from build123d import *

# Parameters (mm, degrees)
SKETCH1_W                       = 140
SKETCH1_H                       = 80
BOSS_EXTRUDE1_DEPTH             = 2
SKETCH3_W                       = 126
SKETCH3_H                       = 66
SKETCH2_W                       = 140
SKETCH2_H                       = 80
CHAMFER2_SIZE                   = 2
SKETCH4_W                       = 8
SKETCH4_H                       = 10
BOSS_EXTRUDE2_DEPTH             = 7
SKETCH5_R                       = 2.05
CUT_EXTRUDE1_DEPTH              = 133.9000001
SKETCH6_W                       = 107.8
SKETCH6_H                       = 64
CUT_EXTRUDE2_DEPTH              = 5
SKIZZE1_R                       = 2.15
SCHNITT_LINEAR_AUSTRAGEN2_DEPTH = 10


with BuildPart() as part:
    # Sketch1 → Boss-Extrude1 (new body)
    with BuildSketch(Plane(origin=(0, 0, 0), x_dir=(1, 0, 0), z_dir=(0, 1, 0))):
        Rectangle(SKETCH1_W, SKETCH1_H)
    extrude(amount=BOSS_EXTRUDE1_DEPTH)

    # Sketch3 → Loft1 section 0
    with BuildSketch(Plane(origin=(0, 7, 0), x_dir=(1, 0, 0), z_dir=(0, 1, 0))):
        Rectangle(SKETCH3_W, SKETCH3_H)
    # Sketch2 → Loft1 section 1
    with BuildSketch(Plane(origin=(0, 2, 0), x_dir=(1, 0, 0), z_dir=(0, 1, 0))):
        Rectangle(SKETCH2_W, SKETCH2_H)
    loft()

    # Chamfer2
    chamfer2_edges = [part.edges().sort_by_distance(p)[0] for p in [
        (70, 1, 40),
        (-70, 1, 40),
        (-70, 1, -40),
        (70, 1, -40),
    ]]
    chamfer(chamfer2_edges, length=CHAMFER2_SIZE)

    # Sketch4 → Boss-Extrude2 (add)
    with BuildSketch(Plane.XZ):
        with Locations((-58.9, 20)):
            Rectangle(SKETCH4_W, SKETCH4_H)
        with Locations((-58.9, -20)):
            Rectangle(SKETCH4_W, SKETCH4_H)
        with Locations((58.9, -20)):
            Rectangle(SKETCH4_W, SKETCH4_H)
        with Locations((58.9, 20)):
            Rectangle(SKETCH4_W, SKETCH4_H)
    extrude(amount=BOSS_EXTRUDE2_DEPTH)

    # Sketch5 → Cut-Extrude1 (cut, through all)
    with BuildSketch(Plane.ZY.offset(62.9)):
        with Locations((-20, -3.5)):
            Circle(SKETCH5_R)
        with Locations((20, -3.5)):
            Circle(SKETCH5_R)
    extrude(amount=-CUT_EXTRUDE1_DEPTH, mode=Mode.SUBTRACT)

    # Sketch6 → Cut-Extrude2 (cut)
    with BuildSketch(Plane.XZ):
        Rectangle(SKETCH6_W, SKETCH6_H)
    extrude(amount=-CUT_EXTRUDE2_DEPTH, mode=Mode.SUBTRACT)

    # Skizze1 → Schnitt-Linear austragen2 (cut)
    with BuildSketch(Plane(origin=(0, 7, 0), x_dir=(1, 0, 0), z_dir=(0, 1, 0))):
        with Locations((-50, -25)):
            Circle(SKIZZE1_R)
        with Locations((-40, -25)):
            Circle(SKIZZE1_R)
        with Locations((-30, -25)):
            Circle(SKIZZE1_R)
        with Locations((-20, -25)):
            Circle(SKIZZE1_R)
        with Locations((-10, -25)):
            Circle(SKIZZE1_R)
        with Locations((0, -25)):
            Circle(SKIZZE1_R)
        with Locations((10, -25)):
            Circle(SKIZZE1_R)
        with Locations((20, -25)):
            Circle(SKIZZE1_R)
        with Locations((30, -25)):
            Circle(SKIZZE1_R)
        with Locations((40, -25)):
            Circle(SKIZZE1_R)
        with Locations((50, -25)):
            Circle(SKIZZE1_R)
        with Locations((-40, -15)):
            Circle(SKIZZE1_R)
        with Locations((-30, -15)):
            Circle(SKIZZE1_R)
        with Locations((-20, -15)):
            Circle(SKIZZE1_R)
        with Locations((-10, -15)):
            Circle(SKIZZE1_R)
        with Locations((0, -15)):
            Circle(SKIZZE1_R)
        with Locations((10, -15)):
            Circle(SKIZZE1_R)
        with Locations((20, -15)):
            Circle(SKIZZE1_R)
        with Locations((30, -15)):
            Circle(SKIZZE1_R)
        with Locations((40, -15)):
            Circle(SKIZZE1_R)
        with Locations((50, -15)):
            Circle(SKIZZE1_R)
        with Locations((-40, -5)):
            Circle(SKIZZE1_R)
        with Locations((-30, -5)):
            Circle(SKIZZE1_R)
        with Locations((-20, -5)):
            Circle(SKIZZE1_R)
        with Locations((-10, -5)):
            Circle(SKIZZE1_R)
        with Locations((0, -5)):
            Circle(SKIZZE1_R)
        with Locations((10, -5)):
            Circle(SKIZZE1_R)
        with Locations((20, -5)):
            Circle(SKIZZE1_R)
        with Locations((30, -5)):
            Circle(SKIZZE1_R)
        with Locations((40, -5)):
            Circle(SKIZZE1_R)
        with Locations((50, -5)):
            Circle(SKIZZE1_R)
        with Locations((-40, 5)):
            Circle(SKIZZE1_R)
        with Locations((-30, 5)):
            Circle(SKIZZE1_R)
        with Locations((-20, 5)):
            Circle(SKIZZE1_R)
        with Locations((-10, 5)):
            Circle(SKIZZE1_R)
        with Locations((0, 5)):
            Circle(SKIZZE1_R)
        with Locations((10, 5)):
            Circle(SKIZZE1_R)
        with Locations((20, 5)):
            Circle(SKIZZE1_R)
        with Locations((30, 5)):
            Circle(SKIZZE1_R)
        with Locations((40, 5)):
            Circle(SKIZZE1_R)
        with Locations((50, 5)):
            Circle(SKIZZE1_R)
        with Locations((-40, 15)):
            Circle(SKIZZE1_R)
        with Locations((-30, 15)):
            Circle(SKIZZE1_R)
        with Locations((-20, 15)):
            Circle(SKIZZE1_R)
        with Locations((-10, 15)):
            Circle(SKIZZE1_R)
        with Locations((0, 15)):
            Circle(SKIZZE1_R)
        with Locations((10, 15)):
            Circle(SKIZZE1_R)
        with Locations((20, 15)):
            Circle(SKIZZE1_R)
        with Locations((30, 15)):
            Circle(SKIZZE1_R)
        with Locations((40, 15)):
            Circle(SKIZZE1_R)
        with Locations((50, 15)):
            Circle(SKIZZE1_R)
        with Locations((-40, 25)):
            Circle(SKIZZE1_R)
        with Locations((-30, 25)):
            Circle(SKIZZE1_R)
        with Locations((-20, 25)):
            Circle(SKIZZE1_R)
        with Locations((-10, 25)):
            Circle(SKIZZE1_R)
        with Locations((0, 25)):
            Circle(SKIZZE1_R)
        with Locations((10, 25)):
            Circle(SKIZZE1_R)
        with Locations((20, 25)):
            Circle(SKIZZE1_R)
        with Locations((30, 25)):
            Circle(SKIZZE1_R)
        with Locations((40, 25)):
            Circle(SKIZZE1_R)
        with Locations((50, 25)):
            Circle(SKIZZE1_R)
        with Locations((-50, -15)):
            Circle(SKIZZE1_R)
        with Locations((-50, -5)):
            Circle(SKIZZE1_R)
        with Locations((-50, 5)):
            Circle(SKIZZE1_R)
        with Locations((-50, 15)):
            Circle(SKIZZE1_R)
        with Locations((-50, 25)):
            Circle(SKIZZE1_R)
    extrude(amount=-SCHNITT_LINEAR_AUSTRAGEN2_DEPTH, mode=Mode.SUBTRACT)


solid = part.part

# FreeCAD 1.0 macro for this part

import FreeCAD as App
import Part
import Sketcher
Q = App.Units.Quantity


def edges_at(feature, points):
    """Names of the edges that pass closest to the given points."""
    edges = feature.Shape.Edges
    near = lambda p: min(range(len(edges)), key=lambda i: edges[i].distToShape(Part.Vertex(*p))[0])
    return sorted({f"Edge{near(p) + 1}" for p in points})


def add_polygon(sketch, points):
    """Adds a closed chain of lines whose ends are joined by coincident constraints."""
    first, n = sketch.GeometryCount, len(points)
    for a, b in zip(points, points[1:] + points[:1]):
        sketch.addGeometry(Part.LineSegment(App.Vector(*a, 0), App.Vector(*b, 0)), False)
    for i in range(n):
        sketch.addConstraint(Sketcher.Constraint("Coincident", first + i, 2, first + (i + 1) % n, 1))

doc = App.newDocument("Part")
params = doc.addObject("Spreadsheet::Sheet", "Params")
for row, (alias, value) in enumerate([
    ("sketch1_width", "140 mm"),
    ("sketch1_height", "80 mm"),
    ("pad1_length", "2 mm"),
    ("sketch2_width", "126 mm"),
    ("sketch2_height", "66 mm"),
    ("sketch3_width", "140 mm"),
    ("sketch3_height", "80 mm"),
    ("chamfer_size", "2 mm"),
    ("sketch4_width", "8 mm"),
    ("sketch4_height", "10 mm"),
    ("pad2_length", "7 mm"),
    ("sketch5_diameter", "4.1 mm"),
    ("sketch6_height", "64 mm"),
    ("sketch6_width", "107.8 mm"),
    ("pocket2_length", "5 mm"),
    ("sketch7_diameter", "4.3 mm"),
    ("pocket3_length", "10 mm"),
], start=1):
    params.set(f"A{row}", alias)
    params.set(f"B{row}", "=" + value)
    params.setAlias(f"B{row}", alias)

body = doc.addObject("PartDesign::Body", "Body")

sketch1 = body.newObject("Sketcher::SketchObject", "Sketch")
sketch1.AttachmentSupport = (doc.getObject("XZ_Plane"), [""])
sketch1.MapMode = "FlatFace"
add_polygon(sketch1, [(-70, -40), (-70, 40), (70, 40), (70, -40)])
sketch1.addConstraint([
    Sketcher.Constraint("Vertical", 0),
    Sketcher.Constraint("Horizontal", 1),
    Sketcher.Constraint("Vertical", 2),
    Sketcher.Constraint("Horizontal", 3),
    Sketcher.Constraint("Symmetric", 0, 2, 2, 2, -1, 1),
    Sketcher.Constraint("DistanceX", 1, 1, 1, 2, Q("140 mm")),
    Sketcher.Constraint("DistanceY", 0, 1, 0, 2, Q("80 mm")),
])
sketch1.setExpression("Constraints[9]", "Params.sketch1_width")
sketch1.setExpression("Constraints[10]", "Params.sketch1_height")
pad1 = body.newObject("PartDesign::Pad", "Pad")
pad1.Profile = sketch1
pad1.setExpression("Length", "Params.pad1_length")
pad1.Reversed = True

sketch2 = body.newObject("Sketcher::SketchObject", "Sketch001")
sketch2.AttachmentSupport = (doc.getObject("XZ_Plane"), [""])
sketch2.MapMode = "FlatFace"
sketch2.AttachmentOffset = App.Placement(App.Vector(0, 0, -7), App.Rotation())
add_polygon(sketch2, [(-63, -33), (-63, 33), (63, 33), (63, -33)])
sketch2.addConstraint([
    Sketcher.Constraint("Vertical", 0),
    Sketcher.Constraint("Horizontal", 1),
    Sketcher.Constraint("Vertical", 2),
    Sketcher.Constraint("Horizontal", 3),
    Sketcher.Constraint("Symmetric", 0, 2, 2, 2, -1, 1),
    Sketcher.Constraint("DistanceX", 1, 1, 1, 2, Q("126 mm")),
    Sketcher.Constraint("DistanceY", 0, 1, 0, 2, Q("66 mm")),
])
sketch2.setExpression("Constraints[9]", "Params.sketch2_width")
sketch2.setExpression("Constraints[10]", "Params.sketch2_height")

sketch3 = body.newObject("Sketcher::SketchObject", "Sketch002")
sketch3.AttachmentSupport = (doc.getObject("XZ_Plane"), [""])
sketch3.MapMode = "FlatFace"
sketch3.AttachmentOffset = App.Placement(App.Vector(0, 0, -2), App.Rotation())
add_polygon(sketch3, [(-70, -40), (-70, 40), (70, 40), (70, -40)])
sketch3.addConstraint([
    Sketcher.Constraint("Vertical", 0),
    Sketcher.Constraint("Horizontal", 1),
    Sketcher.Constraint("Vertical", 2),
    Sketcher.Constraint("Horizontal", 3),
    Sketcher.Constraint("Symmetric", 0, 2, 2, 2, -1, 1),
    Sketcher.Constraint("DistanceX", 1, 1, 1, 2, Q("140 mm")),
    Sketcher.Constraint("DistanceY", 0, 1, 0, 2, Q("80 mm")),
])
sketch3.setExpression("Constraints[9]", "Params.sketch3_width")
sketch3.setExpression("Constraints[10]", "Params.sketch3_height")

additiveloft = body.newObject("PartDesign::AdditiveLoft", "AdditiveLoft")
additiveloft.Profile = sketch2
additiveloft.Sections = [sketch3]
doc.recompute()

chamfer = body.newObject("PartDesign::Chamfer", "Chamfer")
chamfer.Base = (additiveloft, edges_at(additiveloft, [
    (70, 1, 40),
    (-70, 1, 40),
    (-70, 1, -40),
    (70, 1, -40),
]))
chamfer.setExpression("Size", "Params.chamfer_size")

sketch4 = body.newObject("Sketcher::SketchObject", "Sketch003")
sketch4.AttachmentSupport = (doc.getObject("XZ_Plane"), [""])
sketch4.MapMode = "FlatFace"
add_polygon(sketch4, [(-62.9, 25), (-62.9, 15), (-54.9, 15), (-54.9, 25)])
add_polygon(sketch4, [(-62.9, -15), (-62.9, -25), (-54.9, -25), (-54.9, -15)])
add_polygon(sketch4, [(54.9, -15), (54.9, -25), (62.9, -25), (62.9, -15)])
add_polygon(sketch4, [(54.9, 25), (54.9, 15), (62.9, 15), (62.9, 25)])
sketch4.addConstraint([
    Sketcher.Constraint("Vertical", 0),
    Sketcher.Constraint("Horizontal", 1),
    Sketcher.Constraint("Vertical", 2),
    Sketcher.Constraint("Horizontal", 3),
    Sketcher.Constraint("Vertical", 4),
    Sketcher.Constraint("Horizontal", 5),
    Sketcher.Constraint("Vertical", 6),
    Sketcher.Constraint("Horizontal", 7),
    Sketcher.Constraint("Vertical", 8),
    Sketcher.Constraint("Horizontal", 9),
    Sketcher.Constraint("Vertical", 10),
    Sketcher.Constraint("Horizontal", 11),
    Sketcher.Constraint("Vertical", 12),
    Sketcher.Constraint("Horizontal", 13),
    Sketcher.Constraint("Vertical", 14),
    Sketcher.Constraint("Horizontal", 15),
    Sketcher.Constraint("Symmetric", 2, 2, 8, 2, -1, 1),
    Sketcher.Constraint("Symmetric", 0, 2, 10, 2, -1, 1),
    Sketcher.Constraint("Symmetric", 6, 2, 12, 2, -1, 1),
    Sketcher.Constraint("Symmetric", 4, 2, 14, 2, -1, 1),
    Sketcher.Constraint("Symmetric", 5, 2, 8, 2, -2),
    Sketcher.Constraint("Symmetric", 7, 2, 10, 2, -2),
    Sketcher.Constraint("DistanceX", 1, 1, 1, 2, Q("8 mm")),
    Sketcher.Constraint("DistanceY", 0, 2, 0, 1, Q("10 mm")),
    Sketcher.Constraint("DistanceY", -1, 1, 0, 2, Q("15 mm")),
    Sketcher.Constraint("DistanceX", 0, 2, -1, 1, Q("62.9 mm")),
])
sketch4.setExpression("Constraints[38]", "Params.sketch4_width")
sketch4.setExpression("Constraints[39]", "Params.sketch4_height")
pad2 = body.newObject("PartDesign::Pad", "Pad001")
pad2.Profile = sketch4
pad2.setExpression("Length", "Params.pad2_length")

sketch5 = body.newObject("Sketcher::SketchObject", "Sketch004")
sketch5.AttachmentSupport = (doc.getObject("YZ_Plane"), [""])
sketch5.MapMode = "FlatFace"
sketch5.AttachmentOffset = App.Placement(App.Vector(0, 0, -62.9), App.Rotation())
sketch5.addGeometry([
    Part.Circle(App.Vector(-3.5, -20, 0), App.Vector(0, 0, 1), 2.05),
    Part.Circle(App.Vector(-3.5, 20, 0), App.Vector(0, 0, 1), 2.05),
], False)
sketch5.addConstraint([
    Sketcher.Constraint("Equal", 0, 1),
    Sketcher.Constraint("Symmetric", 0, 3, 1, 3, -1),
    Sketcher.Constraint("Diameter", 0, Q("4.1 mm")),
    Sketcher.Constraint("DistanceY", 0, 3, -1, 1, Q("20 mm")),
    Sketcher.Constraint("DistanceX", 0, 3, -1, 1, Q("3.5 mm")),
])
sketch5.setExpression("Constraints[2]", "Params.sketch5_diameter")
pocket1 = body.newObject("PartDesign::Pocket", "Pocket")
pocket1.Profile = sketch5
pocket1.Type = "ThroughAll"
pocket1.Reversed = True

sketch6 = body.newObject("Sketcher::SketchObject", "Sketch005")
sketch6.AttachmentSupport = (doc.getObject("XZ_Plane"), [""])
sketch6.MapMode = "FlatFace"
add_polygon(sketch6, [(-53.9, 32), (-53.9, -32), (53.9, -32), (53.9, 32)])
sketch6.addConstraint([
    Sketcher.Constraint("Vertical", 0),
    Sketcher.Constraint("Horizontal", 1),
    Sketcher.Constraint("Vertical", 2),
    Sketcher.Constraint("Horizontal", 3),
    Sketcher.Constraint("Symmetric", 0, 2, 2, 2, -1, 1),
    Sketcher.Constraint("DistanceY", 0, 2, 0, 1, Q("64 mm")),
    Sketcher.Constraint("DistanceX", 1, 1, 1, 2, Q("107.8 mm")),
])
sketch6.setExpression("Constraints[9]", "Params.sketch6_height")
sketch6.setExpression("Constraints[10]", "Params.sketch6_width")
pocket2 = body.newObject("PartDesign::Pocket", "Pocket001")
pocket2.Profile = sketch6
pocket2.setExpression("Length", "Params.pocket2_length")

sketch7 = body.newObject("Sketcher::SketchObject", "Sketch006")
sketch7.AttachmentSupport = (doc.getObject("XZ_Plane"), [""])
sketch7.MapMode = "FlatFace"
sketch7.AttachmentOffset = App.Placement(App.Vector(0, 0, -7), App.Rotation())
sketch7.addGeometry([
    Part.Circle(App.Vector(-50, 25, 0), App.Vector(0, 0, 1), 2.15),
    Part.Circle(App.Vector(-40, 25, 0), App.Vector(0, 0, 1), 2.15),
    Part.Circle(App.Vector(-30, 25, 0), App.Vector(0, 0, 1), 2.15),
    Part.Circle(App.Vector(-20, 25, 0), App.Vector(0, 0, 1), 2.15),
    Part.Circle(App.Vector(-10, 25, 0), App.Vector(0, 0, 1), 2.15),
    Part.Circle(App.Vector(0, 25, 0), App.Vector(0, 0, 1), 2.15),
    Part.Circle(App.Vector(10, 25, 0), App.Vector(0, 0, 1), 2.15),
    Part.Circle(App.Vector(20, 25, 0), App.Vector(0, 0, 1), 2.15),
    Part.Circle(App.Vector(30, 25, 0), App.Vector(0, 0, 1), 2.15),
    Part.Circle(App.Vector(40, 25, 0), App.Vector(0, 0, 1), 2.15),
    Part.Circle(App.Vector(50, 25, 0), App.Vector(0, 0, 1), 2.15),
    Part.Circle(App.Vector(-40, 15, 0), App.Vector(0, 0, 1), 2.15),
    Part.Circle(App.Vector(-30, 15, 0), App.Vector(0, 0, 1), 2.15),
    Part.Circle(App.Vector(-20, 15, 0), App.Vector(0, 0, 1), 2.15),
    Part.Circle(App.Vector(-10, 15, 0), App.Vector(0, 0, 1), 2.15),
    Part.Circle(App.Vector(0, 15, 0), App.Vector(0, 0, 1), 2.15),
    Part.Circle(App.Vector(10, 15, 0), App.Vector(0, 0, 1), 2.15),
    Part.Circle(App.Vector(20, 15, 0), App.Vector(0, 0, 1), 2.15),
    Part.Circle(App.Vector(30, 15, 0), App.Vector(0, 0, 1), 2.15),
    Part.Circle(App.Vector(40, 15, 0), App.Vector(0, 0, 1), 2.15),
    Part.Circle(App.Vector(50, 15, 0), App.Vector(0, 0, 1), 2.15),
    Part.Circle(App.Vector(-40, 5, 0), App.Vector(0, 0, 1), 2.15),
    Part.Circle(App.Vector(-30, 5, 0), App.Vector(0, 0, 1), 2.15),
    Part.Circle(App.Vector(-20, 5, 0), App.Vector(0, 0, 1), 2.15),
    Part.Circle(App.Vector(-10, 5, 0), App.Vector(0, 0, 1), 2.15),
    Part.Circle(App.Vector(0, 5, 0), App.Vector(0, 0, 1), 2.15),
    Part.Circle(App.Vector(10, 5, 0), App.Vector(0, 0, 1), 2.15),
    Part.Circle(App.Vector(20, 5, 0), App.Vector(0, 0, 1), 2.15),
    Part.Circle(App.Vector(30, 5, 0), App.Vector(0, 0, 1), 2.15),
    Part.Circle(App.Vector(40, 5, 0), App.Vector(0, 0, 1), 2.15),
    Part.Circle(App.Vector(50, 5, 0), App.Vector(0, 0, 1), 2.15),
    Part.Circle(App.Vector(-40, -5, 0), App.Vector(0, 0, 1), 2.15),
    Part.Circle(App.Vector(-30, -5, 0), App.Vector(0, 0, 1), 2.15),
    Part.Circle(App.Vector(-20, -5, 0), App.Vector(0, 0, 1), 2.15),
    Part.Circle(App.Vector(-10, -5, 0), App.Vector(0, 0, 1), 2.15),
    Part.Circle(App.Vector(0, -5, 0), App.Vector(0, 0, 1), 2.15),
    Part.Circle(App.Vector(10, -5, 0), App.Vector(0, 0, 1), 2.15),
    Part.Circle(App.Vector(20, -5, 0), App.Vector(0, 0, 1), 2.15),
    Part.Circle(App.Vector(30, -5, 0), App.Vector(0, 0, 1), 2.15),
    Part.Circle(App.Vector(40, -5, 0), App.Vector(0, 0, 1), 2.15),
    Part.Circle(App.Vector(50, -5, 0), App.Vector(0, 0, 1), 2.15),
    Part.Circle(App.Vector(-40, -15, 0), App.Vector(0, 0, 1), 2.15),
    Part.Circle(App.Vector(-30, -15, 0), App.Vector(0, 0, 1), 2.15),
    Part.Circle(App.Vector(-20, -15, 0), App.Vector(0, 0, 1), 2.15),
    Part.Circle(App.Vector(-10, -15, 0), App.Vector(0, 0, 1), 2.15),
    Part.Circle(App.Vector(0, -15, 0), App.Vector(0, 0, 1), 2.15),
    Part.Circle(App.Vector(10, -15, 0), App.Vector(0, 0, 1), 2.15),
    Part.Circle(App.Vector(20, -15, 0), App.Vector(0, 0, 1), 2.15),
    Part.Circle(App.Vector(30, -15, 0), App.Vector(0, 0, 1), 2.15),
    Part.Circle(App.Vector(40, -15, 0), App.Vector(0, 0, 1), 2.15),
    Part.Circle(App.Vector(50, -15, 0), App.Vector(0, 0, 1), 2.15),
    Part.Circle(App.Vector(-40, -25, 0), App.Vector(0, 0, 1), 2.15),
    Part.Circle(App.Vector(-30, -25, 0), App.Vector(0, 0, 1), 2.15),
    Part.Circle(App.Vector(-20, -25, 0), App.Vector(0, 0, 1), 2.15),
    Part.Circle(App.Vector(-10, -25, 0), App.Vector(0, 0, 1), 2.15),
    Part.Circle(App.Vector(0, -25, 0), App.Vector(0, 0, 1), 2.15),
    Part.Circle(App.Vector(10, -25, 0), App.Vector(0, 0, 1), 2.15),
    Part.Circle(App.Vector(20, -25, 0), App.Vector(0, 0, 1), 2.15),
    Part.Circle(App.Vector(30, -25, 0), App.Vector(0, 0, 1), 2.15),
    Part.Circle(App.Vector(40, -25, 0), App.Vector(0, 0, 1), 2.15),
    Part.Circle(App.Vector(50, -25, 0), App.Vector(0, 0, 1), 2.15),
    Part.Circle(App.Vector(-50, 15, 0), App.Vector(0, 0, 1), 2.15),
    Part.Circle(App.Vector(-50, 5, 0), App.Vector(0, 0, 1), 2.15),
    Part.Circle(App.Vector(-50, -5, 0), App.Vector(0, 0, 1), 2.15),
    Part.Circle(App.Vector(-50, -15, 0), App.Vector(0, 0, 1), 2.15),
    Part.Circle(App.Vector(-50, -25, 0), App.Vector(0, 0, 1), 2.15),
], False)
sketch7.addConstraint([
    Sketcher.Constraint("Equal", 0, 1),
    Sketcher.Constraint("Equal", 1, 2),
    Sketcher.Constraint("Equal", 2, 3),
    Sketcher.Constraint("Equal", 3, 4),
    Sketcher.Constraint("Equal", 4, 5),
    Sketcher.Constraint("Equal", 5, 6),
    Sketcher.Constraint("Equal", 6, 7),
    Sketcher.Constraint("Equal", 7, 8),
    Sketcher.Constraint("Equal", 8, 9),
    Sketcher.Constraint("Equal", 9, 10),
    Sketcher.Constraint("Equal", 10, 11),
    Sketcher.Constraint("Equal", 11, 12),
    Sketcher.Constraint("Equal", 12, 13),
    Sketcher.Constraint("Equal", 13, 14),
    Sketcher.Constraint("Equal", 14, 15),
    Sketcher.Constraint("Equal", 15, 16),
    Sketcher.Constraint("Equal", 16, 17),
    Sketcher.Constraint("Equal", 17, 18),
    Sketcher.Constraint("Equal", 18, 19),
    Sketcher.Constraint("Equal", 19, 20),
    Sketcher.Constraint("Equal", 20, 21),
    Sketcher.Constraint("Equal", 21, 22),
    Sketcher.Constraint("Equal", 22, 23),
    Sketcher.Constraint("Equal", 23, 24),
    Sketcher.Constraint("Equal", 24, 25),
    Sketcher.Constraint("Equal", 25, 26),
    Sketcher.Constraint("Equal", 26, 27),
    Sketcher.Constraint("Equal", 27, 28),
    Sketcher.Constraint("Equal", 28, 29),
    Sketcher.Constraint("Equal", 29, 30),
    Sketcher.Constraint("Equal", 30, 31),
    Sketcher.Constraint("Equal", 31, 32),
    Sketcher.Constraint("Equal", 32, 33),
    Sketcher.Constraint("Equal", 33, 34),
    Sketcher.Constraint("Equal", 34, 35),
    Sketcher.Constraint("Equal", 35, 36),
    Sketcher.Constraint("Equal", 36, 37),
    Sketcher.Constraint("Equal", 37, 38),
    Sketcher.Constraint("Equal", 38, 39),
    Sketcher.Constraint("Equal", 39, 40),
    Sketcher.Constraint("Equal", 40, 41),
    Sketcher.Constraint("Equal", 41, 42),
    Sketcher.Constraint("Equal", 42, 43),
    Sketcher.Constraint("Equal", 43, 44),
    Sketcher.Constraint("Equal", 44, 45),
    Sketcher.Constraint("Equal", 45, 46),
    Sketcher.Constraint("Equal", 46, 47),
    Sketcher.Constraint("Equal", 47, 48),
    Sketcher.Constraint("Equal", 48, 49),
    Sketcher.Constraint("Equal", 49, 50),
    Sketcher.Constraint("Equal", 50, 51),
    Sketcher.Constraint("Equal", 51, 52),
    Sketcher.Constraint("Equal", 52, 53),
    Sketcher.Constraint("Equal", 53, 54),
    Sketcher.Constraint("Equal", 54, 55),
    Sketcher.Constraint("Equal", 55, 56),
    Sketcher.Constraint("Equal", 56, 57),
    Sketcher.Constraint("Equal", 57, 58),
    Sketcher.Constraint("Equal", 58, 59),
    Sketcher.Constraint("Equal", 59, 60),
    Sketcher.Constraint("Equal", 60, 61),
    Sketcher.Constraint("Equal", 61, 62),
    Sketcher.Constraint("Equal", 62, 63),
    Sketcher.Constraint("Equal", 63, 64),
    Sketcher.Constraint("Equal", 64, 65),
    Sketcher.Constraint("Symmetric", 29, 3, 31, 3, -1, 1),
    Sketcher.Constraint("Symmetric", 28, 3, 32, 3, -1, 1),
    Sketcher.Constraint("Symmetric", 27, 3, 33, 3, -1, 1),
    Sketcher.Constraint("Symmetric", 26, 3, 34, 3, -1, 1),
    Sketcher.Constraint("Symmetric", 25, 3, 35, 3, -1, 1),
    Sketcher.Constraint("Symmetric", 24, 3, 36, 3, -1, 1),
    Sketcher.Constraint("Symmetric", 23, 3, 37, 3, -1, 1),
    Sketcher.Constraint("Symmetric", 22, 3, 38, 3, -1, 1),
    Sketcher.Constraint("Symmetric", 21, 3, 39, 3, -1, 1),
    Sketcher.Constraint("Symmetric", 19, 3, 41, 3, -1, 1),
    Sketcher.Constraint("Symmetric", 18, 3, 42, 3, -1, 1),
    Sketcher.Constraint("Symmetric", 17, 3, 43, 3, -1, 1),
    Sketcher.Constraint("Symmetric", 16, 3, 44, 3, -1, 1),
    Sketcher.Constraint("Symmetric", 15, 3, 45, 3, -1, 1),
    Sketcher.Constraint("Symmetric", 14, 3, 46, 3, -1, 1),
    Sketcher.Constraint("Symmetric", 13, 3, 47, 3, -1, 1),
    Sketcher.Constraint("Symmetric", 12, 3, 48, 3, -1, 1),
    Sketcher.Constraint("Symmetric", 11, 3, 49, 3, -1, 1),
    Sketcher.Constraint("Symmetric", 9, 3, 51, 3, -1, 1),
    Sketcher.Constraint("Symmetric", 8, 3, 52, 3, -1, 1),
    Sketcher.Constraint("Symmetric", 7, 3, 53, 3, -1, 1),
    Sketcher.Constraint("Symmetric", 6, 3, 54, 3, -1, 1),
    Sketcher.Constraint("Symmetric", 5, 3, 55, 3, -1, 1),
    Sketcher.Constraint("Symmetric", 4, 3, 56, 3, -1, 1),
    Sketcher.Constraint("Symmetric", 3, 3, 57, 3, -1, 1),
    Sketcher.Constraint("Symmetric", 2, 3, 58, 3, -1, 1),
    Sketcher.Constraint("Symmetric", 1, 3, 59, 3, -1, 1),
    Sketcher.Constraint("Symmetric", 0, 3, 60, 3, -1, 1),
    Sketcher.Constraint("Symmetric", 50, 3, 61, 3, -1, 1),
    Sketcher.Constraint("Symmetric", 40, 3, 62, 3, -1, 1),
    Sketcher.Constraint("Symmetric", 30, 3, 63, 3, -1, 1),
    Sketcher.Constraint("Symmetric", 20, 3, 64, 3, -1, 1),
    Sketcher.Constraint("Symmetric", 10, 3, 65, 3, -1, 1),
    Sketcher.Constraint("Symmetric", 4, 3, 6, 3, -2),
    Sketcher.Constraint("Symmetric", 3, 3, 7, 3, -2),
    Sketcher.Constraint("Symmetric", 2, 3, 8, 3, -2),
    Sketcher.Constraint("Symmetric", 1, 3, 9, 3, -2),
    Sketcher.Constraint("Symmetric", 0, 3, 10, 3, -2),
    Sketcher.Constraint("Symmetric", 14, 3, 16, 3, -2),
    Sketcher.Constraint("Symmetric", 13, 3, 17, 3, -2),
    Sketcher.Constraint("Symmetric", 12, 3, 18, 3, -2),
    Sketcher.Constraint("Symmetric", 11, 3, 19, 3, -2),
    Sketcher.Constraint("Symmetric", 24, 3, 26, 3, -2),
    Sketcher.Constraint("Symmetric", 23, 3, 27, 3, -2),
    Sketcher.Constraint("Symmetric", 22, 3, 28, 3, -2),
    Sketcher.Constraint("Symmetric", 21, 3, 29, 3, -2),
    Sketcher.Constraint("Symmetric", 20, 3, 61, 3, -2),
    Sketcher.Constraint("Symmetric", 30, 3, 62, 3, -2),
    Sketcher.Constraint("PointOnObject", 5, 3, -2),
    Sketcher.Constraint("PointOnObject", 15, 3, -2),
    Sketcher.Constraint("PointOnObject", 25, 3, -2),
    Sketcher.Constraint("Horizontal", 0, 3, 1, 3),
    Sketcher.Constraint("Horizontal", 1, 3, 2, 3),
    Sketcher.Constraint("Horizontal", 2, 3, 3, 3),
    Sketcher.Constraint("Horizontal", 3, 3, 4, 3),
    Sketcher.Constraint("Horizontal", 4, 3, 5, 3),
    Sketcher.Constraint("Horizontal", 11, 3, 12, 3),
    Sketcher.Constraint("Horizontal", 12, 3, 13, 3),
    Sketcher.Constraint("Horizontal", 13, 3, 14, 3),
    Sketcher.Constraint("Horizontal", 14, 3, 15, 3),
    Sketcher.Constraint("Horizontal", 19, 3, 20, 3),
    Sketcher.Constraint("Horizontal", 21, 3, 22, 3),
    Sketcher.Constraint("Horizontal", 22, 3, 23, 3),
    Sketcher.Constraint("Horizontal", 23, 3, 24, 3),
    Sketcher.Constraint("Horizontal", 24, 3, 25, 3),
    Sketcher.Constraint("Horizontal", 29, 3, 30, 3),
    Sketcher.Constraint("Vertical", 1, 3, 11, 3),
    Sketcher.Constraint("Vertical", 2, 3, 12, 3),
    Sketcher.Constraint("Vertical", 3, 3, 13, 3),
    Sketcher.Constraint("Vertical", 4, 3, 14, 3),
    Sketcher.Constraint("Vertical", 10, 3, 20, 3),
    Sketcher.Constraint("Vertical", 11, 3, 21, 3),
    Sketcher.Constraint("Vertical", 12, 3, 22, 3),
    Sketcher.Constraint("Vertical", 13, 3, 23, 3),
    Sketcher.Constraint("Vertical", 14, 3, 24, 3),
    Sketcher.Constraint("Vertical", 20, 3, 30, 3),
    Sketcher.Constraint("Diameter", 0, Q("4.3 mm")),
    Sketcher.Constraint("DistanceX", 0, 3, -1, 1, Q("50 mm")),
    Sketcher.Constraint("DistanceY", -1, 1, 0, 3, Q("25 mm")),
    Sketcher.Constraint("DistanceX", 1, 3, -1, 1, Q("40 mm")),
    Sketcher.Constraint("DistanceX", 2, 3, -1, 1, Q("30 mm")),
    Sketcher.Constraint("DistanceX", 3, 3, -1, 1, Q("20 mm")),
    Sketcher.Constraint("DistanceX", 4, 3, -1, 1, Q("10 mm")),
    Sketcher.Constraint("DistanceY", -1, 1, 11, 3, Q("15 mm")),
    Sketcher.Constraint("DistanceY", -1, 1, 21, 3, Q("5 mm")),
])
sketch7.setExpression("Constraints[141]", "Params.sketch7_diameter")
pocket3 = body.newObject("PartDesign::Pocket", "Pocket002")
pocket3.Profile = sketch7
pocket3.setExpression("Length", "Params.pocket3_length")
pocket3.Reversed = True

doc.recompute()
